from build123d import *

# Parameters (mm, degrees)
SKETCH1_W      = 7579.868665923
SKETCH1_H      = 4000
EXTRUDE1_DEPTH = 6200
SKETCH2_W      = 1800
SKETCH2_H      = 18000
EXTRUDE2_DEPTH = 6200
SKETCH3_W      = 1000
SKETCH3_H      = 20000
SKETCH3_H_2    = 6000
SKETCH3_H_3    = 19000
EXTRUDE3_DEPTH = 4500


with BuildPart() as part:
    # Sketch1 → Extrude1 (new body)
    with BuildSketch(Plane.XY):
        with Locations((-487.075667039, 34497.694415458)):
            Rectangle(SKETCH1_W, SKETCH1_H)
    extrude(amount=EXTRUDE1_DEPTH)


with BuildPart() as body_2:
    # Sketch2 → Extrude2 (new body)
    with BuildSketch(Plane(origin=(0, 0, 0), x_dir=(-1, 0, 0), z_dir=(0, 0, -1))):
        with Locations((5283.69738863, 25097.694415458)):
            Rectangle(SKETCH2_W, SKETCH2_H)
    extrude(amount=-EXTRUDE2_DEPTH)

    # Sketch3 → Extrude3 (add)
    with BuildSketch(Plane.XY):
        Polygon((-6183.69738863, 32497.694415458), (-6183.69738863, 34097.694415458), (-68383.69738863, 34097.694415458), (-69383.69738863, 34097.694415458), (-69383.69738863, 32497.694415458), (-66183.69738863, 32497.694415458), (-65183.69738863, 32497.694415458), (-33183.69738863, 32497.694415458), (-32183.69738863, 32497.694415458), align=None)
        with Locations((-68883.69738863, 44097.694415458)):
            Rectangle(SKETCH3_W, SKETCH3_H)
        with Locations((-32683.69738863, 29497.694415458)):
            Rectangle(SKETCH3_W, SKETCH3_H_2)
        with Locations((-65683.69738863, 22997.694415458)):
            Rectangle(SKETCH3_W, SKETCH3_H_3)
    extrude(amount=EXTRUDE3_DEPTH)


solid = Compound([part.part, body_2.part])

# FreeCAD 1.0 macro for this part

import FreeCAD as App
import Part
import Sketcher


def add_polygon(sketch, points):
    """Adds a closed chain of lines whose ends are joined by coincident constraints."""
    first, n = sketch.GeometryCount, len(points)
    for a, b in zip(points, points[1:] + points[:1]):
        sketch.addGeometry(Part.LineSegment(App.Vector(*a, 0), App.Vector(*b, 0)), False)
    for i in range(n):
        sketch.addConstraint(Sketcher.Constraint("Coincident", first + i, 2, first + (i + 1) % n, 1))

doc = App.newDocument("Part")
body = doc.addObject("PartDesign::Body", "Body")

# Sketch on XY plane
sketch1 = body.newObject("Sketcher::SketchObject", "Sketch")
sketch1.AttachmentSupport = (doc.getObject("XY_Plane"), [""])
sketch1.MapMode = "FlatFace"
add_polygon(sketch1, [(-4277, 36498), (-4277, 32498), (3303, 32498), (3303, 36498)])  # lines 0-3
sketch1.addConstraint([
    Sketcher.Constraint("Vertical", 0),
    Sketcher.Constraint("Horizontal", 1),
    Sketcher.Constraint("Vertical", 2),
    Sketcher.Constraint("Horizontal", 3),
    Sketcher.Constraint("DistanceY", 0, 2, 0, 1, 4000.0),
    Sketcher.Constraint("DistanceX", 0, 2, -1, 1, 4277.01),
    Sketcher.Constraint("DistanceX", 1, 1, 1, 2, 7579.868666),
    Sketcher.Constraint("DistanceY", -1, 1, 0, 2, 32497.694415),
])
pad1 = body.newObject("PartDesign::Pad", "Pad")
pad1.Profile = sketch1
pad1.Length = 6200
body2 = doc.addObject("PartDesign::Body", "Body001")

# Sketch on XY plane
sketch2 = body2.newObject("Sketcher::SketchObject", "Sketch001")
sketch2.AttachmentSupport = (doc.getObject("XY_Plane001"), [""])
sketch2.MapMode = "FlatFace"
add_polygon(sketch2, [(-4384, 34098), (-4384, 16098), (-6184, 16098), (-6184, 34098)])  # lines 0-3
sketch2.addConstraint([
    Sketcher.Constraint("Vertical", 0),
    Sketcher.Constraint("Horizontal", 1),
    Sketcher.Constraint("Vertical", 2),
    Sketcher.Constraint("Horizontal", 3),
    Sketcher.Constraint("DistanceX", 1, 2, 1, 1, 1800.0),
    Sketcher.Constraint("DistanceY", 0, 2, 0, 1, 18000.0),
    Sketcher.Constraint("DistanceX", 0, 2, -1, 1, 4383.697389),
    Sketcher.Constraint("DistanceY", -1, 1, 0, 2, 16097.694415),
])
pad2 = body2.newObject("PartDesign::Pad", "Pad001")
pad2.Profile = sketch2
pad2.Length = 6200

# Sketch on XY plane
sketch3 = body2.newObject("Sketcher::SketchObject", "Sketch002")
sketch3.AttachmentSupport = (doc.getObject("XY_Plane001"), [""])
sketch3.MapMode = "FlatFace"
add_polygon(sketch3, [(-6184, 32498), (-6184, 34098), (-68384, 34098), (-68384, 54098), (-69384, 54098), (-69384, 32498), (-66184, 32498), (-66184, 13498), (-65184, 13498), (-65184, 32498), (-33184, 32498), (-33184, 26498), (-32184, 26498), (-32184, 32498)])  # lines 0-13
sketch3.addConstraint([
    Sketcher.Constraint("Vertical", 0),
    Sketcher.Constraint("Horizontal", 1),
    Sketcher.Constraint("Vertical", 2),
    Sketcher.Constraint("Horizontal", 3),
    Sketcher.Constraint("Vertical", 4),
    Sketcher.Constraint("Horizontal", 5),
    Sketcher.Constraint("Vertical", 6),
    Sketcher.Constraint("Horizontal", 7),
    Sketcher.Constraint("Vertical", 8),
    Sketcher.Constraint("Horizontal", 9),
    Sketcher.Constraint("Vertical", 10),
    Sketcher.Constraint("Horizontal", 11),
    Sketcher.Constraint("Vertical", 12),
    Sketcher.Constraint("Horizontal", 13),
    Sketcher.Constraint("Horizontal", 5, 2, 8, 2),
    Sketcher.Constraint("Horizontal", 9, 2, 12, 2),
    Sketcher.Constraint("Equal", 3, 7),
    Sketcher.Constraint("Equal", 7, 11),
    Sketcher.Constraint("DistanceX", 1, 2, 1, 1, 62200.0),
    Sketcher.Constraint("DistanceX", 3, 2, 3, 1, 1000.0),
    Sketcher.Constraint("DistanceX", 5, 1, 5, 2, 3200.0),
    Sketcher.Constraint("DistanceX", 9, 1, 9, 2, 32000.0),
    Sketcher.Constraint("DistanceY", 0, 1, 0, 2, 1600.0),
    Sketcher.Constraint("DistanceY", 2, 1, 2, 2, 20000.0),
    Sketcher.Constraint("DistanceY", 6, 2, 6, 1, 19000.0),
    Sketcher.Constraint("DistanceY", 10, 2, 10, 1, 6000.0),
    Sketcher.Constraint("DistanceX", 0, 2, -1, 1, 6183.697389),
    Sketcher.Constraint("DistanceY", -1, 1, 0, 2, 34097.694415),
])
pad3 = body2.newObject("PartDesign::Pad", "Pad002")
pad3.Profile = sketch3
pad3.Length = 4500

doc.recompute()
